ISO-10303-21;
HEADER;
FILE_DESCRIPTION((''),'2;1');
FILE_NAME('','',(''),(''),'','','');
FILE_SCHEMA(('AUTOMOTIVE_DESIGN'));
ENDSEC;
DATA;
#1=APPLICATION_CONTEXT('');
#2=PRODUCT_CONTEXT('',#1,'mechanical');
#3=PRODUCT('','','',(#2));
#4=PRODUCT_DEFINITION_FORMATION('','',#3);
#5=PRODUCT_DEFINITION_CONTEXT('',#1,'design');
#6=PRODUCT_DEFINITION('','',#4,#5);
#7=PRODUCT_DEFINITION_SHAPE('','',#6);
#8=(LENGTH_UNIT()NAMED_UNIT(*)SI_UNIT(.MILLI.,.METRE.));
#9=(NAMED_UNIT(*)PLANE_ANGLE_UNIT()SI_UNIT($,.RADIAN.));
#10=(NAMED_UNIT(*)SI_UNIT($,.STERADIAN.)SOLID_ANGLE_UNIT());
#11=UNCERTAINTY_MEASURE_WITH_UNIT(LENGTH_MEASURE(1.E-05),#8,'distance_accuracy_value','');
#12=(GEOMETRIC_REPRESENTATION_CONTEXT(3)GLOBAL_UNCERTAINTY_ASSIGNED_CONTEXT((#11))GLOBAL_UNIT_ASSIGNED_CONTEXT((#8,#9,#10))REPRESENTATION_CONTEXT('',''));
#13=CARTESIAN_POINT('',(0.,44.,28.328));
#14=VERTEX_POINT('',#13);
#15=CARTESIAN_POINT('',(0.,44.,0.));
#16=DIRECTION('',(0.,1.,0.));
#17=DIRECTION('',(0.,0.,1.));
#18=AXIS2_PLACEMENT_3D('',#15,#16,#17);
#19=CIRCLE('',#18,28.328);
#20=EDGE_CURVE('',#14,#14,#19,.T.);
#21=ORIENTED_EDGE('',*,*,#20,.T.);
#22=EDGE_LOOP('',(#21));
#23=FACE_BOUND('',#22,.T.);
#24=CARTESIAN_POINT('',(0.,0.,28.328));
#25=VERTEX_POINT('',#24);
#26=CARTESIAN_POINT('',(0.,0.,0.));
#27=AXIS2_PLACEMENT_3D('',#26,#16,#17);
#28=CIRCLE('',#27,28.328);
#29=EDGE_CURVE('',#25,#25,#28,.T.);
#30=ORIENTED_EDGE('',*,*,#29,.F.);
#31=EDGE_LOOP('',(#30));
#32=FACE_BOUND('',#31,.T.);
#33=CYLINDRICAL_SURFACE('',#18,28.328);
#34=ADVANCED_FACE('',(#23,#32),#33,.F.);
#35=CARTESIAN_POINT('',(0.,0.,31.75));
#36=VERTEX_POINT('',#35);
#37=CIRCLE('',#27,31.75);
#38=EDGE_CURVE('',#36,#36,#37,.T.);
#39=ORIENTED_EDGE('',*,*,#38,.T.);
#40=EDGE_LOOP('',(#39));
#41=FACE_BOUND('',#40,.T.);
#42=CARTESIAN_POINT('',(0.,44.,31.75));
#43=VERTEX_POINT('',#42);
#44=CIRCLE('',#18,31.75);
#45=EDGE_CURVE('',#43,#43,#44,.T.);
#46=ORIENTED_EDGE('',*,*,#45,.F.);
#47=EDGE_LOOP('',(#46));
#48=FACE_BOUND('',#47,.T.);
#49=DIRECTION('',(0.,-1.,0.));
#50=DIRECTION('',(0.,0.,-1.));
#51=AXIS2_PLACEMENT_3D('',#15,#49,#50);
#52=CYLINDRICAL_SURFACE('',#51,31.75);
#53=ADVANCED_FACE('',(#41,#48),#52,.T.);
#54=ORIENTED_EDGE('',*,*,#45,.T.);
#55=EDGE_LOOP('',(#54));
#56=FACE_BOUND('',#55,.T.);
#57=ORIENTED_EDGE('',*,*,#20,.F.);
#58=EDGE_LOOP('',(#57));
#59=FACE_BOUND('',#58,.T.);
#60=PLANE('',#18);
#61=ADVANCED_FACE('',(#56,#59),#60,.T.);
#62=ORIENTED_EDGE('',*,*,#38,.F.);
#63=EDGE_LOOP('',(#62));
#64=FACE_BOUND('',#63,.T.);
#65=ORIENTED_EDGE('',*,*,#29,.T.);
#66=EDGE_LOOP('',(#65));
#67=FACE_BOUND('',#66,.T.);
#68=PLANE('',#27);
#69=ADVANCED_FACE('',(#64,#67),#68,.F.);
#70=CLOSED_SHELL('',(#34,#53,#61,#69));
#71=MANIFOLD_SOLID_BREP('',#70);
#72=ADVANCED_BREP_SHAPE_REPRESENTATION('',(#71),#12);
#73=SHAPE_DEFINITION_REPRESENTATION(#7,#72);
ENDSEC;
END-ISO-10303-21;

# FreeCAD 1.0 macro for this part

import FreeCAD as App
import Part
import Sketcher
from FreeCAD import Vector

doc = App.newDocument("Part")
body = doc.addObject("PartDesign::Body", "Body")

sketch1 = body.newObject("Sketcher::SketchObject", "Sketch")
sketch1.AttachmentSupport = (doc.getObject("XZ_Plane"), [""])
sketch1.MapMode = "FlatFace"
sketch1.addGeometry(Part.Circle(Vector(0, 0, 0), Vector(0, 0, 1), 32), False)
sketch1.addConstraint([
    Sketcher.Constraint("Coincident", 0, 3, -1, 1),
    Sketcher.Constraint("Diameter", 0, 63.5),
])
pad1 = body.newObject("PartDesign::Pad", "Pad")
pad1.Profile = sketch1
pad1.Length = 44
pad1.Reversed = True

sketch2 = body.newObject("Sketcher::SketchObject", "Sketch001")
sketch2.AttachmentSupport = (doc.getObject("XZ_Plane"), [""])
sketch2.MapMode = "FlatFace"
sketch2.AttachmentOffset = App.Placement(Vector(0, 0, -44), App.Rotation())
sketch2.addGeometry(Part.Circle(Vector(0, 0, 0), Vector(0, 0, 1), 28), False)
sketch2.addConstraint([
    Sketcher.Constraint("Coincident", 0, 3, -1, 1),
    Sketcher.Constraint("Diameter", 0, 56.656),
])
doc.recompute()
hole = body.newObject("PartDesign::Hole", "Hole")
hole.Profile = sketch2
hole.ThreadType = "None"
hole.Diameter = 56.656
hole.DepthType = "ThroughAll"
hole.Reversed = True

doc.recompute()
